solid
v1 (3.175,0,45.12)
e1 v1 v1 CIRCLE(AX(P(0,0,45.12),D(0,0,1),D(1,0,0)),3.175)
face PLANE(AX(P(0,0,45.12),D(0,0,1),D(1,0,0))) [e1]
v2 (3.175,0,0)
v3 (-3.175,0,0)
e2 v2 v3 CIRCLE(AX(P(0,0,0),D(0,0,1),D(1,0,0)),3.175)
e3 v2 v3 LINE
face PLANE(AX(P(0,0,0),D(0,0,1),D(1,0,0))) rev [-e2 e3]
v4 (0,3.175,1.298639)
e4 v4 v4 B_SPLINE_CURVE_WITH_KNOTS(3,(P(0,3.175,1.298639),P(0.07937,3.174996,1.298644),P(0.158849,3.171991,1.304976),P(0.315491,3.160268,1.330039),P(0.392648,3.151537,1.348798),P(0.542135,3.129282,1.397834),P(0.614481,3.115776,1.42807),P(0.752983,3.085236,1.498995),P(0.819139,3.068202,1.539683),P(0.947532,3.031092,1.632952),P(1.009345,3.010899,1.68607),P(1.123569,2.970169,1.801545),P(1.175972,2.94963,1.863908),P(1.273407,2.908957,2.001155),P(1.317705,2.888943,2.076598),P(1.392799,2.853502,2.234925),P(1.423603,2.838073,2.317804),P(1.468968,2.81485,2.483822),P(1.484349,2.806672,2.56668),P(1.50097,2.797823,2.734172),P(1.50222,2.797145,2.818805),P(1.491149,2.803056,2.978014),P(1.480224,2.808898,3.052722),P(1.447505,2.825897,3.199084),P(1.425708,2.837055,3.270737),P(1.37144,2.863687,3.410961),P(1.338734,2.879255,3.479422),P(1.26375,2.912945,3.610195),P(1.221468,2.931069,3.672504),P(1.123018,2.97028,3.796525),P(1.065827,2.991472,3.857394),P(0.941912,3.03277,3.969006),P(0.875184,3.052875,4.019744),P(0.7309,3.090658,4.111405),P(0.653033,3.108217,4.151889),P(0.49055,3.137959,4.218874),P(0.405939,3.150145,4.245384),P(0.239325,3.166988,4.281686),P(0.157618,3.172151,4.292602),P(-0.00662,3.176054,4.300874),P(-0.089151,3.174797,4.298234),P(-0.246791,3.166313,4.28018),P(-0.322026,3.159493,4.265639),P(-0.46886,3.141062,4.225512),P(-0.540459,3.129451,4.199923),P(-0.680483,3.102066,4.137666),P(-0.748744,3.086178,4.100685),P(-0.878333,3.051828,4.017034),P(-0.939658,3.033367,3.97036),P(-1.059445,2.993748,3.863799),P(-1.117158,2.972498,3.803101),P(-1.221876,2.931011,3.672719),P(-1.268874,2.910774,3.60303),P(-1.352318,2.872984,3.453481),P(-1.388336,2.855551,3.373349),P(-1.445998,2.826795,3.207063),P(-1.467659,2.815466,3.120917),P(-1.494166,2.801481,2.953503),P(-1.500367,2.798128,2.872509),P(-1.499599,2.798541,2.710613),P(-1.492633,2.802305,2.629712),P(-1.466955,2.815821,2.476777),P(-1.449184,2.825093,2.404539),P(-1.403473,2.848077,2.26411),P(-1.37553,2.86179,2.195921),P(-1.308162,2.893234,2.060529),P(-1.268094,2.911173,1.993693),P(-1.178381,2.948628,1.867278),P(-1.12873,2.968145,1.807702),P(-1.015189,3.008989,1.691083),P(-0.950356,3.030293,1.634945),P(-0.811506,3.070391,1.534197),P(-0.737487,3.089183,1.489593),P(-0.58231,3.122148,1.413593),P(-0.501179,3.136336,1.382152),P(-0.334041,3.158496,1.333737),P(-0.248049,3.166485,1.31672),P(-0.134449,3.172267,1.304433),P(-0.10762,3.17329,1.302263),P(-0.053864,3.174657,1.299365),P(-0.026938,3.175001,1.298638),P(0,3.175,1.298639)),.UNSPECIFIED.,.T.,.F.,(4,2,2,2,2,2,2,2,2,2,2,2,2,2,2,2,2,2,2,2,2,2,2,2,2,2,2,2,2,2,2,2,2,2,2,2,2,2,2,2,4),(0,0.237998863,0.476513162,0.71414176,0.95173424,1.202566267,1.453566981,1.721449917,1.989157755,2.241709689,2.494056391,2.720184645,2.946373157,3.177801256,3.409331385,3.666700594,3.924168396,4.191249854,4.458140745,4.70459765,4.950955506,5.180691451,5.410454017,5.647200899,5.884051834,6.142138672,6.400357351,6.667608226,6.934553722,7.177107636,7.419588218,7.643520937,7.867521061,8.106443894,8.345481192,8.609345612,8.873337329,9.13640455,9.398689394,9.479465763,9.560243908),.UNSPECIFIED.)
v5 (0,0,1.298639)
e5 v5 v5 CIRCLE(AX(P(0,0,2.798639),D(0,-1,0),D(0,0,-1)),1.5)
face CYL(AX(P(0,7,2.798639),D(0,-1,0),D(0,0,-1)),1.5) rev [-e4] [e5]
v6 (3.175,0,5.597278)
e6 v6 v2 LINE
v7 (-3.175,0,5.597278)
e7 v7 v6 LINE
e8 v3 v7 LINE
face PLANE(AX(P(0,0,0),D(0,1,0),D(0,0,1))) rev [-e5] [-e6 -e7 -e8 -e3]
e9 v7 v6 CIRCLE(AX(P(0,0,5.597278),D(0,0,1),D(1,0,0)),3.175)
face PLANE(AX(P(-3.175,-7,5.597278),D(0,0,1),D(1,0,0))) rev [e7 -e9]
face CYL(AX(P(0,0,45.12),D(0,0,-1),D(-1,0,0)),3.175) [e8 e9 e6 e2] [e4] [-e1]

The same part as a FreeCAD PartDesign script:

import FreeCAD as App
import Part
import Sketcher
from FreeCAD import Vector
Q = App.Units.Quantity

doc = App.newDocument("Part")
body = doc.addObject("PartDesign::Body", "Body")

# Sketch on XY plane
sketch1 = body.newObject("Sketcher::SketchObject", "Sketch")
sketch1.AttachmentSupport = (doc.getObject("XY_Plane"), [""])
sketch1.MapMode = "FlatFace"
sketch1.addGeometry(Part.Circle(Vector(0, 0, 0), Vector(0, 0, 1), 3.2), False)
sketch1.addConstraint(Sketcher.Constraint("Coincident", 0, 3, -1, 1))
sketch1.addConstraint(Sketcher.Constraint("Diameter", 0, Q("6.35 mm")))
pad1 = body.newObject("PartDesign::Pad", "Pad")
pad1.Profile = sketch1
pad1.Length = 45.12

# Sketch on XZ plane
sketch2 = body.newObject("Sketcher::SketchObject", "Sketch001")
sketch2.AttachmentSupport = (doc.getObject("XZ_Plane"), [""])
sketch2.MapMode = "FlatFace"
sketch2.addGeometry(Part.LineSegment(Vector(-3, 0, 0), Vector(-3, 6, 0)), False)
sketch2.addGeometry(Part.LineSegment(Vector(-3, 6, 0), Vector(3, 6, 0)), False)
sketch2.addGeometry(Part.LineSegment(Vector(3, 6, 0), Vector(3, 0, 0)), False)
sketch2.addGeometry(Part.LineSegment(Vector(3, 0, 0), Vector(-3, 0, 0)), False)
sketch2.addConstraint(Sketcher.Constraint("Coincident", 0, 2, 1, 1))
sketch2.addConstraint(Sketcher.Constraint("Coincident", 1, 2, 2, 1))
sketch2.addConstraint(Sketcher.Constraint("Coincident", 2, 2, 3, 1))
sketch2.addConstraint(Sketcher.Constraint("Coincident", 3, 2, 0, 1))
sketch2.addConstraint(Sketcher.Constraint("Vertical", 0))
sketch2.addConstraint(Sketcher.Constraint("Horizontal", 1))
sketch2.addConstraint(Sketcher.Constraint("Vertical", 2))
sketch2.addConstraint(Sketcher.Constraint("Horizontal", 3))
sketch2.addConstraint(Sketcher.Constraint("Symmetric", 2, 2, 3, 2, -1, 1))
sketch2.addConstraint(Sketcher.Constraint("DistanceX", 1, 1, 1, 2, Q("6.35 mm")))
sketch2.addConstraint(Sketcher.Constraint("DistanceY", 0, 1, 0, 2, Q("5.597278 mm")))
pocket1 = body.newObject("PartDesign::Pocket", "Pocket")
pocket1.Profile = sketch2
pocket1.Length = 7
pocket1.Reversed = True

# Sketch on XZ plane
sketch3 = body.newObject("Sketcher::SketchObject", "Sketch002")
sketch3.AttachmentSupport = (doc.getObject("XZ_Plane"), [""])
sketch3.MapMode = "FlatFace"
sketch3.addGeometry(Part.Circle(Vector(0, 2.8, 0), Vector(0, 0, 1), 1.5), False)
sketch3.addConstraint(Sketcher.Constraint("PointOnObject", 0, 3, -2))
sketch3.addConstraint(Sketcher.Constraint("Diameter", 0, Q("3 mm")))
sketch3.addConstraint(Sketcher.Constraint("DistanceY", -1, 1, 0, 3, Q("2.798639 mm")))
pocket2 = body.newObject("PartDesign::Pocket", "Pocket001")
pocket2.Profile = sketch3
pocket2.Length = 7

doc.recompute()
